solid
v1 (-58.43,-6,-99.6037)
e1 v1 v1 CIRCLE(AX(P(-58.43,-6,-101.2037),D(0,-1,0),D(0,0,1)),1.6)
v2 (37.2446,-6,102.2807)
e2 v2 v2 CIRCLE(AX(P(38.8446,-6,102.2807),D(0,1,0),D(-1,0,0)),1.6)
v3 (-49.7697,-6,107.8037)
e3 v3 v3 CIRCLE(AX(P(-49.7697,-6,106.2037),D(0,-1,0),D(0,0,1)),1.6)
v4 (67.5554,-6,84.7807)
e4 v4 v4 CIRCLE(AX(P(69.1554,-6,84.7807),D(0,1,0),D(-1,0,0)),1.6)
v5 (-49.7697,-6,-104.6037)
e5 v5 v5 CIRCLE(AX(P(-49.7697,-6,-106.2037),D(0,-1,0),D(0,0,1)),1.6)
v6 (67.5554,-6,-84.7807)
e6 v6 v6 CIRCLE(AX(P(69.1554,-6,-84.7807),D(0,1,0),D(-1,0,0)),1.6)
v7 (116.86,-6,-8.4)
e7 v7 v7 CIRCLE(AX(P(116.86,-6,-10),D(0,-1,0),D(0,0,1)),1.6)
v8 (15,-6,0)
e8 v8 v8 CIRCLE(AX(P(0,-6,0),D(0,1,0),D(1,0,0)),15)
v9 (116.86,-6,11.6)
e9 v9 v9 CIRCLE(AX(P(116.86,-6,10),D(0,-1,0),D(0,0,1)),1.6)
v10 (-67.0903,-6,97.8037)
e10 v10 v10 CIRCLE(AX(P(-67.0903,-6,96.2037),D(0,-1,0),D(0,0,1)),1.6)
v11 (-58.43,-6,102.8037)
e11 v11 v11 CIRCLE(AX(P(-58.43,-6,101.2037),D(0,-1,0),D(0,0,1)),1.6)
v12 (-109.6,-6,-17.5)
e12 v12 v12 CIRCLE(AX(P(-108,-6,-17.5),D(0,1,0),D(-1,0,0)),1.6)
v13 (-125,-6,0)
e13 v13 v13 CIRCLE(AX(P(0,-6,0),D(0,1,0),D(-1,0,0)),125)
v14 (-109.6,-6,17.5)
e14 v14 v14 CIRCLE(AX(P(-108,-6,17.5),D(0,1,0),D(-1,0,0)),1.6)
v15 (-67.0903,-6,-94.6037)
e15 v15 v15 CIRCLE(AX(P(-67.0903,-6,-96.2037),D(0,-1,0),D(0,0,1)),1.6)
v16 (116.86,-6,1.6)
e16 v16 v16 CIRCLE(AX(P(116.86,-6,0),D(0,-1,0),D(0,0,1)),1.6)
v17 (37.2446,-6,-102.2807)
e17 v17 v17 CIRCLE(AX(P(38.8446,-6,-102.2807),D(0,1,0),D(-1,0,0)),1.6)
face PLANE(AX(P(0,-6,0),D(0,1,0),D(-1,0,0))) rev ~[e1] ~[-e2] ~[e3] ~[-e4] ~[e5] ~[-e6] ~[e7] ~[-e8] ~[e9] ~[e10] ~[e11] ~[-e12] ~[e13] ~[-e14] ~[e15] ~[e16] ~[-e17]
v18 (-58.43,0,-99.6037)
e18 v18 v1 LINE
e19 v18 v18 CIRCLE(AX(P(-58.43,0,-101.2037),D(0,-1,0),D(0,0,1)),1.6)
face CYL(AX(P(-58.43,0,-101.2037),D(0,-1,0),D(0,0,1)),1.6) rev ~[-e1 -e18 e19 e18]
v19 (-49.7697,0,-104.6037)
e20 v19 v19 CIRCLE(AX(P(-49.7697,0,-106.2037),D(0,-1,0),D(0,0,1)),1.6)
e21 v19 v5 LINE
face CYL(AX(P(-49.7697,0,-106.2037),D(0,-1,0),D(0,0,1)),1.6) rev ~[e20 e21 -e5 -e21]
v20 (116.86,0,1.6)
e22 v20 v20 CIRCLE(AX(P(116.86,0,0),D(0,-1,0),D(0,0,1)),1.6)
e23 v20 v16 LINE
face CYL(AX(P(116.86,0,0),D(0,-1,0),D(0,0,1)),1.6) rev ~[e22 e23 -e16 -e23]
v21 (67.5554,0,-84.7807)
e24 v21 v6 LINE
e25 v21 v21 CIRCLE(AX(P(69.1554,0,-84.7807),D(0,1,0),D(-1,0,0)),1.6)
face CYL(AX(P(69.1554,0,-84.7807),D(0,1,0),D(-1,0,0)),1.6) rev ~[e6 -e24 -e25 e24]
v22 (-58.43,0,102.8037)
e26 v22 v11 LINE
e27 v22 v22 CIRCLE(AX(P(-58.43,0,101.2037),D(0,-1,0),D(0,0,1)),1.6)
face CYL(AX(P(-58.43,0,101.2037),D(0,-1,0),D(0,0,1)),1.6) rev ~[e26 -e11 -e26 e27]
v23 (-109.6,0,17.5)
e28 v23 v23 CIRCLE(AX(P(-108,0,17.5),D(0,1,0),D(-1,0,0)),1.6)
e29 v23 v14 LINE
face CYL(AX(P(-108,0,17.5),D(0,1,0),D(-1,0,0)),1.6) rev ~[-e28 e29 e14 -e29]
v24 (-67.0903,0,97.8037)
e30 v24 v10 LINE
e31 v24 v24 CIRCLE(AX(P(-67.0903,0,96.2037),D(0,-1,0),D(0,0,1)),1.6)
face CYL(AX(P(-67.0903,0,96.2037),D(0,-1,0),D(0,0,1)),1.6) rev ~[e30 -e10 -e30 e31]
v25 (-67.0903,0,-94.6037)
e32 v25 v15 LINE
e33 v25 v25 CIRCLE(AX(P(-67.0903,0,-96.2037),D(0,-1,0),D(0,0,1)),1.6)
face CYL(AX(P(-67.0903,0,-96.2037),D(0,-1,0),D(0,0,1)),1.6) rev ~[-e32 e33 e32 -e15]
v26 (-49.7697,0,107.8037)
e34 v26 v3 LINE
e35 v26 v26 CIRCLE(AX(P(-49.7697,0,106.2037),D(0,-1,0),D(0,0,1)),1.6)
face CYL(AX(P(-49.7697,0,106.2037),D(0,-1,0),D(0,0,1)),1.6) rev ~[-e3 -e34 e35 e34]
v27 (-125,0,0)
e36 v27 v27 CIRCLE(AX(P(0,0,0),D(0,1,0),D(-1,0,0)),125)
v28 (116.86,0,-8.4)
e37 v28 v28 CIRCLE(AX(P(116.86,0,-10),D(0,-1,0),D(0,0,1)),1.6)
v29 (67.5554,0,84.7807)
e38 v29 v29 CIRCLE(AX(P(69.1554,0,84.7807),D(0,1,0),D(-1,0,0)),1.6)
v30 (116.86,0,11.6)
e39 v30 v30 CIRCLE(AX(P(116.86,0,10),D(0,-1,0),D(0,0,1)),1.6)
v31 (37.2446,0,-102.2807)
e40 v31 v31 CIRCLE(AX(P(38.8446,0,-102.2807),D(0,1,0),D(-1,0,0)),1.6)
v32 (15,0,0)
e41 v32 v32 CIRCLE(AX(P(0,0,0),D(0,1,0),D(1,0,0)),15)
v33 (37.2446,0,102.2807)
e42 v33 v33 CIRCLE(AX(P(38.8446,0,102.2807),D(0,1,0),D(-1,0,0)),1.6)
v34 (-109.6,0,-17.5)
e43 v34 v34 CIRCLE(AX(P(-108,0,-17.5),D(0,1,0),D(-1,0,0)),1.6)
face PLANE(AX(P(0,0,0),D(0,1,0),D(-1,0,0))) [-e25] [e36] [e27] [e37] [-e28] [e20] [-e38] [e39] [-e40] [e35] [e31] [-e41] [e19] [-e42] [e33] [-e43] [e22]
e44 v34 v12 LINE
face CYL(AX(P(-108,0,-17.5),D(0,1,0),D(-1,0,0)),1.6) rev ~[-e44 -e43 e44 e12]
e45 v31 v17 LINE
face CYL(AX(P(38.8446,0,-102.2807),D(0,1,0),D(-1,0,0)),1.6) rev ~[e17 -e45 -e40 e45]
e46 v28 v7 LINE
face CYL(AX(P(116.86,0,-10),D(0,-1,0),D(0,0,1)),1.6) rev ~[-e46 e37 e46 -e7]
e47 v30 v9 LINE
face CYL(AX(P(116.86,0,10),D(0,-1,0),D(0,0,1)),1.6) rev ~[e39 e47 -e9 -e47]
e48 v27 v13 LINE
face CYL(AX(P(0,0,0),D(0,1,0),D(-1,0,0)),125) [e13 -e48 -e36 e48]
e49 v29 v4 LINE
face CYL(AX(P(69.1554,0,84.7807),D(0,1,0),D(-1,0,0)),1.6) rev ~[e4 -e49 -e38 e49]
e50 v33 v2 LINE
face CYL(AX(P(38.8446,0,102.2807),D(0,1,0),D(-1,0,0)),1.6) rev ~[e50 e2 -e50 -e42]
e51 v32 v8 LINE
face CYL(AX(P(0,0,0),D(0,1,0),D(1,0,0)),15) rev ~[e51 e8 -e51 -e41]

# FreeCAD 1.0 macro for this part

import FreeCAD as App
import Part
import Sketcher
Q = App.Units.Quantity

doc = App.newDocument("Part")
body = doc.addObject("PartDesign::Body", "Body")

# Sketch on XZ plane
sketch1 = body.newObject("Sketcher::SketchObject", "Sketch")
sketch1.AttachmentSupport = (doc.getObject("XZ_Plane"), [""])
sketch1.MapMode = "FlatFace"
sketch1.addGeometry(Part.Circle(App.Vector(0, 0, 0), App.Vector(0, 0, 1), 125), False)
sketch1.addConstraint(Sketcher.Constraint("Coincident", 0, 3, -1, 1))
sketch1.addConstraint(Sketcher.Constraint("Diameter", 0, Q("250 mm")))
pad1 = body.newObject("PartDesign::Pad", "Pad")
pad1.Profile = sketch1
pad1.Length = 6

# Sketch on XZ plane
sketch2 = body.newObject("Sketcher::SketchObject", "Sketch001")
sketch2.AttachmentSupport = (doc.getObject("XZ_Plane"), [""])
sketch2.MapMode = "FlatFace"
sketch2.addGeometry(Part.Circle(App.Vector(-108, 17.5, 0), App.Vector(0, 0, 1), 1.6), False)
sketch2.addGeometry(Part.Circle(App.Vector(-108, -17.5, 0), App.Vector(0, 0, 1), 1.6), False)
sketch2.addGeometry(Part.Circle(App.Vector(38.8446, 102.2807, 0), App.Vector(0, 0, 1), 1.6), False)
sketch2.addGeometry(Part.Circle(App.Vector(69.1554, 84.7807, 0), App.Vector(0, 0, 1), 1.6), False)
sketch2.addGeometry(Part.Circle(App.Vector(69.1554, -84.7807, 0), App.Vector(0, 0, 1), 1.6), False)
sketch2.addGeometry(Part.Circle(App.Vector(38.8446, -102.2807, 0), App.Vector(0, 0, 1), 1.6), False)
sketch2.addConstraint(Sketcher.Constraint("Equal", 0, 1))
sketch2.addConstraint(Sketcher.Constraint("Equal", 1, 2))
sketch2.addConstraint(Sketcher.Constraint("Equal", 2, 3))
sketch2.addConstraint(Sketcher.Constraint("Equal", 3, 4))
sketch2.addConstraint(Sketcher.Constraint("Equal", 4, 5))
sketch2.addConstraint(Sketcher.Constraint("Symmetric", 0, 3, 1, 3, -1))
sketch2.addConstraint(Sketcher.Constraint("Symmetric", 3, 3, 4, 3, -1))
sketch2.addConstraint(Sketcher.Constraint("Symmetric", 2, 3, 5, 3, -1))
sketch2.addConstraint(Sketcher.Constraint("Diameter", 0, Q("3.2 mm")))
sketch2.addConstraint(Sketcher.Constraint("DistanceX", 0, 3, -1, 1, Q("108 mm")))
sketch2.addConstraint(Sketcher.Constraint("DistanceY", 1, 3, 0, 3, Q("35 mm")))
sketch2.addConstraint(Sketcher.Constraint("DistanceY", 3, 3, 2, 3, Q("17.5 mm")))
sketch2.addConstraint(Sketcher.Constraint("DistanceX", -1, 1, 2, 3, Q("38.8446 mm")))
sketch2.addConstraint(Sketcher.Constraint("DistanceY", -1, 1, 2, 3, Q("102.2807 mm")))
sketch2.addConstraint(Sketcher.Constraint("DistanceX", -1, 1, 3, 3, Q("69.1554 mm")))
pocket1 = body.newObject("PartDesign::Pocket", "Pocket")
pocket1.Profile = sketch2
pocket1.Length = 6
pocket1.Reversed = True

# Sketch on XZ plane
sketch3 = body.newObject("Sketcher::SketchObject", "Sketch002")
sketch3.AttachmentSupport = (doc.getObject("XZ_Plane"), [""])
sketch3.MapMode = "FlatFace"
sketch3.addGeometry(Part.Circle(App.Vector(-58.43, -101.2037, 0), App.Vector(0, 0, 1), 1.6), False)
sketch3.addGeometry(Part.Circle(App.Vector(-58.43, 101.2037, 0), App.Vector(0, 0, 1), 1.6), False)
sketch3.addGeometry(Part.Circle(App.Vector(116.86, 0, 0), App.Vector(0, 0, 1), 1.6), False)
sketch3.addConstraint(Sketcher.Constraint("Equal", 0, 1))
sketch3.addConstraint(Sketcher.Constraint("Equal", 1, 2))
sketch3.addConstraint(Sketcher.Constraint("Symmetric", 0, 3, 1, 3, -1))
sketch3.addConstraint(Sketcher.Constraint("PointOnObject", 2, 3, -1))
sketch3.addConstraint(Sketcher.Constraint("Diameter", 0, Q("3.2 mm")))
sketch3.addConstraint(Sketcher.Constraint("DistanceX", 0, 3, -1, 1, Q("58.43 mm")))
sketch3.addConstraint(Sketcher.Constraint("DistanceX", -1, 1, 2, 3, Q("116.86 mm")))
sketch3.addConstraint(Sketcher.Constraint("DistanceY", 0, 3, -1, 1, Q("101.2037 mm")))
doc.recompute()
hole = body.newObject("PartDesign::Hole", "Hole")
hole.Profile = sketch3
hole.ThreadType = "None"
hole.Diameter = 3.2
hole.DepthType = "Dimension"
hole.Depth = 10
hole.DrillPoint = "Flat"
hole.Reversed = True

# Sketch on XZ plane
sketch4 = body.newObject("Sketcher::SketchObject", "Sketch003")
sketch4.AttachmentSupport = (doc.getObject("XZ_Plane"), [""])
sketch4.MapMode = "FlatFace"
sketch4.addGeometry(Part.Circle(App.Vector(116.86, -10, 0), App.Vector(0, 0, 1), 1.6), False)
sketch4.addGeometry(Part.Circle(App.Vector(116.86, 10, 0), App.Vector(0, 0, 1), 1.6), False)
sketch4.addGeometry(Part.Circle(App.Vector(-67.0903, -96.2037, 0), App.Vector(0, 0, 1), 1.6), False)
sketch4.addGeometry(Part.Circle(App.Vector(-49.7697, -106.2037, 0), App.Vector(0, 0, 1), 1.6), False)
sketch4.addGeometry(Part.Circle(App.Vector(-49.7697, 106.2037, 0), App.Vector(0, 0, 1), 1.6), False)
sketch4.addGeometry(Part.Circle(App.Vector(-67.0903, 96.2037, 0), App.Vector(0, 0, 1), 1.6), False)
sketch4.addConstraint(Sketcher.Constraint("Equal", 0, 1))
sketch4.addConstraint(Sketcher.Constraint("Equal", 1, 2))
sketch4.addConstraint(Sketcher.Constraint("Equal", 2, 3))
sketch4.addConstraint(Sketcher.Constraint("Equal", 3, 4))
sketch4.addConstraint(Sketcher.Constraint("Equal", 4, 5))
sketch4.addConstraint(Sketcher.Constraint("Symmetric", 0, 3, 1, 3, -1))
sketch4.addConstraint(Sketcher.Constraint("Symmetric", 3, 3, 4, 3, -1))
sketch4.addConstraint(Sketcher.Constraint("Symmetric", 2, 3, 5, 3, -1))
sketch4.addConstraint(Sketcher.Constraint("Diameter", 0, Q("3.2 mm")))
sketch4.addConstraint(Sketcher.Constraint("DistanceY", 0, 3, -1, 1, Q("10 mm")))
sketch4.addConstraint(Sketcher.Constraint("DistanceY", 3, 3, 2, 3, Q("10 mm")))
sketch4.addConstraint(Sketcher.Constraint("DistanceX", -1, 1, 0, 3, Q("116.86 mm")))
sketch4.addConstraint(Sketcher.Constraint("DistanceX", 2, 3, -1, 1, Q("67.0903 mm")))
sketch4.addConstraint(Sketcher.Constraint("DistanceY", 2, 3, -1, 1, Q("96.2037 mm")))
sketch4.addConstraint(Sketcher.Constraint("DistanceX", 3, 3, -1, 1, Q("49.7697 mm")))
doc.recompute()
hole2 = body.newObject("PartDesign::Hole", "Hole001")
hole2.Profile = sketch4
hole2.ThreadType = "None"
hole2.Diameter = 3.2
hole2.DepthType = "Dimension"
hole2.Depth = 10
hole2.DrillPoint = "Flat"
hole2.Reversed = True

# Sketch on XZ plane
sketch5 = body.newObject("Sketcher::SketchObject", "Sketch004")
sketch5.AttachmentSupport = (doc.getObject("XZ_Plane"), [""])
sketch5.MapMode = "FlatFace"
sketch5.addGeometry(Part.Circle(App.Vector(0, 0, 0), App.Vector(0, 0, 1), 15), False)
sketch5.addConstraint(Sketcher.Constraint("Coincident", 0, 3, -1, 1))
sketch5.addConstraint(Sketcher.Constraint("Diameter", 0, Q("30 mm")))
pocket2 = body.newObject("PartDesign::Pocket", "Pocket001")
pocket2.Profile = sketch5
pocket2.Length = 10
pocket2.Reversed = True

doc.recompute()
